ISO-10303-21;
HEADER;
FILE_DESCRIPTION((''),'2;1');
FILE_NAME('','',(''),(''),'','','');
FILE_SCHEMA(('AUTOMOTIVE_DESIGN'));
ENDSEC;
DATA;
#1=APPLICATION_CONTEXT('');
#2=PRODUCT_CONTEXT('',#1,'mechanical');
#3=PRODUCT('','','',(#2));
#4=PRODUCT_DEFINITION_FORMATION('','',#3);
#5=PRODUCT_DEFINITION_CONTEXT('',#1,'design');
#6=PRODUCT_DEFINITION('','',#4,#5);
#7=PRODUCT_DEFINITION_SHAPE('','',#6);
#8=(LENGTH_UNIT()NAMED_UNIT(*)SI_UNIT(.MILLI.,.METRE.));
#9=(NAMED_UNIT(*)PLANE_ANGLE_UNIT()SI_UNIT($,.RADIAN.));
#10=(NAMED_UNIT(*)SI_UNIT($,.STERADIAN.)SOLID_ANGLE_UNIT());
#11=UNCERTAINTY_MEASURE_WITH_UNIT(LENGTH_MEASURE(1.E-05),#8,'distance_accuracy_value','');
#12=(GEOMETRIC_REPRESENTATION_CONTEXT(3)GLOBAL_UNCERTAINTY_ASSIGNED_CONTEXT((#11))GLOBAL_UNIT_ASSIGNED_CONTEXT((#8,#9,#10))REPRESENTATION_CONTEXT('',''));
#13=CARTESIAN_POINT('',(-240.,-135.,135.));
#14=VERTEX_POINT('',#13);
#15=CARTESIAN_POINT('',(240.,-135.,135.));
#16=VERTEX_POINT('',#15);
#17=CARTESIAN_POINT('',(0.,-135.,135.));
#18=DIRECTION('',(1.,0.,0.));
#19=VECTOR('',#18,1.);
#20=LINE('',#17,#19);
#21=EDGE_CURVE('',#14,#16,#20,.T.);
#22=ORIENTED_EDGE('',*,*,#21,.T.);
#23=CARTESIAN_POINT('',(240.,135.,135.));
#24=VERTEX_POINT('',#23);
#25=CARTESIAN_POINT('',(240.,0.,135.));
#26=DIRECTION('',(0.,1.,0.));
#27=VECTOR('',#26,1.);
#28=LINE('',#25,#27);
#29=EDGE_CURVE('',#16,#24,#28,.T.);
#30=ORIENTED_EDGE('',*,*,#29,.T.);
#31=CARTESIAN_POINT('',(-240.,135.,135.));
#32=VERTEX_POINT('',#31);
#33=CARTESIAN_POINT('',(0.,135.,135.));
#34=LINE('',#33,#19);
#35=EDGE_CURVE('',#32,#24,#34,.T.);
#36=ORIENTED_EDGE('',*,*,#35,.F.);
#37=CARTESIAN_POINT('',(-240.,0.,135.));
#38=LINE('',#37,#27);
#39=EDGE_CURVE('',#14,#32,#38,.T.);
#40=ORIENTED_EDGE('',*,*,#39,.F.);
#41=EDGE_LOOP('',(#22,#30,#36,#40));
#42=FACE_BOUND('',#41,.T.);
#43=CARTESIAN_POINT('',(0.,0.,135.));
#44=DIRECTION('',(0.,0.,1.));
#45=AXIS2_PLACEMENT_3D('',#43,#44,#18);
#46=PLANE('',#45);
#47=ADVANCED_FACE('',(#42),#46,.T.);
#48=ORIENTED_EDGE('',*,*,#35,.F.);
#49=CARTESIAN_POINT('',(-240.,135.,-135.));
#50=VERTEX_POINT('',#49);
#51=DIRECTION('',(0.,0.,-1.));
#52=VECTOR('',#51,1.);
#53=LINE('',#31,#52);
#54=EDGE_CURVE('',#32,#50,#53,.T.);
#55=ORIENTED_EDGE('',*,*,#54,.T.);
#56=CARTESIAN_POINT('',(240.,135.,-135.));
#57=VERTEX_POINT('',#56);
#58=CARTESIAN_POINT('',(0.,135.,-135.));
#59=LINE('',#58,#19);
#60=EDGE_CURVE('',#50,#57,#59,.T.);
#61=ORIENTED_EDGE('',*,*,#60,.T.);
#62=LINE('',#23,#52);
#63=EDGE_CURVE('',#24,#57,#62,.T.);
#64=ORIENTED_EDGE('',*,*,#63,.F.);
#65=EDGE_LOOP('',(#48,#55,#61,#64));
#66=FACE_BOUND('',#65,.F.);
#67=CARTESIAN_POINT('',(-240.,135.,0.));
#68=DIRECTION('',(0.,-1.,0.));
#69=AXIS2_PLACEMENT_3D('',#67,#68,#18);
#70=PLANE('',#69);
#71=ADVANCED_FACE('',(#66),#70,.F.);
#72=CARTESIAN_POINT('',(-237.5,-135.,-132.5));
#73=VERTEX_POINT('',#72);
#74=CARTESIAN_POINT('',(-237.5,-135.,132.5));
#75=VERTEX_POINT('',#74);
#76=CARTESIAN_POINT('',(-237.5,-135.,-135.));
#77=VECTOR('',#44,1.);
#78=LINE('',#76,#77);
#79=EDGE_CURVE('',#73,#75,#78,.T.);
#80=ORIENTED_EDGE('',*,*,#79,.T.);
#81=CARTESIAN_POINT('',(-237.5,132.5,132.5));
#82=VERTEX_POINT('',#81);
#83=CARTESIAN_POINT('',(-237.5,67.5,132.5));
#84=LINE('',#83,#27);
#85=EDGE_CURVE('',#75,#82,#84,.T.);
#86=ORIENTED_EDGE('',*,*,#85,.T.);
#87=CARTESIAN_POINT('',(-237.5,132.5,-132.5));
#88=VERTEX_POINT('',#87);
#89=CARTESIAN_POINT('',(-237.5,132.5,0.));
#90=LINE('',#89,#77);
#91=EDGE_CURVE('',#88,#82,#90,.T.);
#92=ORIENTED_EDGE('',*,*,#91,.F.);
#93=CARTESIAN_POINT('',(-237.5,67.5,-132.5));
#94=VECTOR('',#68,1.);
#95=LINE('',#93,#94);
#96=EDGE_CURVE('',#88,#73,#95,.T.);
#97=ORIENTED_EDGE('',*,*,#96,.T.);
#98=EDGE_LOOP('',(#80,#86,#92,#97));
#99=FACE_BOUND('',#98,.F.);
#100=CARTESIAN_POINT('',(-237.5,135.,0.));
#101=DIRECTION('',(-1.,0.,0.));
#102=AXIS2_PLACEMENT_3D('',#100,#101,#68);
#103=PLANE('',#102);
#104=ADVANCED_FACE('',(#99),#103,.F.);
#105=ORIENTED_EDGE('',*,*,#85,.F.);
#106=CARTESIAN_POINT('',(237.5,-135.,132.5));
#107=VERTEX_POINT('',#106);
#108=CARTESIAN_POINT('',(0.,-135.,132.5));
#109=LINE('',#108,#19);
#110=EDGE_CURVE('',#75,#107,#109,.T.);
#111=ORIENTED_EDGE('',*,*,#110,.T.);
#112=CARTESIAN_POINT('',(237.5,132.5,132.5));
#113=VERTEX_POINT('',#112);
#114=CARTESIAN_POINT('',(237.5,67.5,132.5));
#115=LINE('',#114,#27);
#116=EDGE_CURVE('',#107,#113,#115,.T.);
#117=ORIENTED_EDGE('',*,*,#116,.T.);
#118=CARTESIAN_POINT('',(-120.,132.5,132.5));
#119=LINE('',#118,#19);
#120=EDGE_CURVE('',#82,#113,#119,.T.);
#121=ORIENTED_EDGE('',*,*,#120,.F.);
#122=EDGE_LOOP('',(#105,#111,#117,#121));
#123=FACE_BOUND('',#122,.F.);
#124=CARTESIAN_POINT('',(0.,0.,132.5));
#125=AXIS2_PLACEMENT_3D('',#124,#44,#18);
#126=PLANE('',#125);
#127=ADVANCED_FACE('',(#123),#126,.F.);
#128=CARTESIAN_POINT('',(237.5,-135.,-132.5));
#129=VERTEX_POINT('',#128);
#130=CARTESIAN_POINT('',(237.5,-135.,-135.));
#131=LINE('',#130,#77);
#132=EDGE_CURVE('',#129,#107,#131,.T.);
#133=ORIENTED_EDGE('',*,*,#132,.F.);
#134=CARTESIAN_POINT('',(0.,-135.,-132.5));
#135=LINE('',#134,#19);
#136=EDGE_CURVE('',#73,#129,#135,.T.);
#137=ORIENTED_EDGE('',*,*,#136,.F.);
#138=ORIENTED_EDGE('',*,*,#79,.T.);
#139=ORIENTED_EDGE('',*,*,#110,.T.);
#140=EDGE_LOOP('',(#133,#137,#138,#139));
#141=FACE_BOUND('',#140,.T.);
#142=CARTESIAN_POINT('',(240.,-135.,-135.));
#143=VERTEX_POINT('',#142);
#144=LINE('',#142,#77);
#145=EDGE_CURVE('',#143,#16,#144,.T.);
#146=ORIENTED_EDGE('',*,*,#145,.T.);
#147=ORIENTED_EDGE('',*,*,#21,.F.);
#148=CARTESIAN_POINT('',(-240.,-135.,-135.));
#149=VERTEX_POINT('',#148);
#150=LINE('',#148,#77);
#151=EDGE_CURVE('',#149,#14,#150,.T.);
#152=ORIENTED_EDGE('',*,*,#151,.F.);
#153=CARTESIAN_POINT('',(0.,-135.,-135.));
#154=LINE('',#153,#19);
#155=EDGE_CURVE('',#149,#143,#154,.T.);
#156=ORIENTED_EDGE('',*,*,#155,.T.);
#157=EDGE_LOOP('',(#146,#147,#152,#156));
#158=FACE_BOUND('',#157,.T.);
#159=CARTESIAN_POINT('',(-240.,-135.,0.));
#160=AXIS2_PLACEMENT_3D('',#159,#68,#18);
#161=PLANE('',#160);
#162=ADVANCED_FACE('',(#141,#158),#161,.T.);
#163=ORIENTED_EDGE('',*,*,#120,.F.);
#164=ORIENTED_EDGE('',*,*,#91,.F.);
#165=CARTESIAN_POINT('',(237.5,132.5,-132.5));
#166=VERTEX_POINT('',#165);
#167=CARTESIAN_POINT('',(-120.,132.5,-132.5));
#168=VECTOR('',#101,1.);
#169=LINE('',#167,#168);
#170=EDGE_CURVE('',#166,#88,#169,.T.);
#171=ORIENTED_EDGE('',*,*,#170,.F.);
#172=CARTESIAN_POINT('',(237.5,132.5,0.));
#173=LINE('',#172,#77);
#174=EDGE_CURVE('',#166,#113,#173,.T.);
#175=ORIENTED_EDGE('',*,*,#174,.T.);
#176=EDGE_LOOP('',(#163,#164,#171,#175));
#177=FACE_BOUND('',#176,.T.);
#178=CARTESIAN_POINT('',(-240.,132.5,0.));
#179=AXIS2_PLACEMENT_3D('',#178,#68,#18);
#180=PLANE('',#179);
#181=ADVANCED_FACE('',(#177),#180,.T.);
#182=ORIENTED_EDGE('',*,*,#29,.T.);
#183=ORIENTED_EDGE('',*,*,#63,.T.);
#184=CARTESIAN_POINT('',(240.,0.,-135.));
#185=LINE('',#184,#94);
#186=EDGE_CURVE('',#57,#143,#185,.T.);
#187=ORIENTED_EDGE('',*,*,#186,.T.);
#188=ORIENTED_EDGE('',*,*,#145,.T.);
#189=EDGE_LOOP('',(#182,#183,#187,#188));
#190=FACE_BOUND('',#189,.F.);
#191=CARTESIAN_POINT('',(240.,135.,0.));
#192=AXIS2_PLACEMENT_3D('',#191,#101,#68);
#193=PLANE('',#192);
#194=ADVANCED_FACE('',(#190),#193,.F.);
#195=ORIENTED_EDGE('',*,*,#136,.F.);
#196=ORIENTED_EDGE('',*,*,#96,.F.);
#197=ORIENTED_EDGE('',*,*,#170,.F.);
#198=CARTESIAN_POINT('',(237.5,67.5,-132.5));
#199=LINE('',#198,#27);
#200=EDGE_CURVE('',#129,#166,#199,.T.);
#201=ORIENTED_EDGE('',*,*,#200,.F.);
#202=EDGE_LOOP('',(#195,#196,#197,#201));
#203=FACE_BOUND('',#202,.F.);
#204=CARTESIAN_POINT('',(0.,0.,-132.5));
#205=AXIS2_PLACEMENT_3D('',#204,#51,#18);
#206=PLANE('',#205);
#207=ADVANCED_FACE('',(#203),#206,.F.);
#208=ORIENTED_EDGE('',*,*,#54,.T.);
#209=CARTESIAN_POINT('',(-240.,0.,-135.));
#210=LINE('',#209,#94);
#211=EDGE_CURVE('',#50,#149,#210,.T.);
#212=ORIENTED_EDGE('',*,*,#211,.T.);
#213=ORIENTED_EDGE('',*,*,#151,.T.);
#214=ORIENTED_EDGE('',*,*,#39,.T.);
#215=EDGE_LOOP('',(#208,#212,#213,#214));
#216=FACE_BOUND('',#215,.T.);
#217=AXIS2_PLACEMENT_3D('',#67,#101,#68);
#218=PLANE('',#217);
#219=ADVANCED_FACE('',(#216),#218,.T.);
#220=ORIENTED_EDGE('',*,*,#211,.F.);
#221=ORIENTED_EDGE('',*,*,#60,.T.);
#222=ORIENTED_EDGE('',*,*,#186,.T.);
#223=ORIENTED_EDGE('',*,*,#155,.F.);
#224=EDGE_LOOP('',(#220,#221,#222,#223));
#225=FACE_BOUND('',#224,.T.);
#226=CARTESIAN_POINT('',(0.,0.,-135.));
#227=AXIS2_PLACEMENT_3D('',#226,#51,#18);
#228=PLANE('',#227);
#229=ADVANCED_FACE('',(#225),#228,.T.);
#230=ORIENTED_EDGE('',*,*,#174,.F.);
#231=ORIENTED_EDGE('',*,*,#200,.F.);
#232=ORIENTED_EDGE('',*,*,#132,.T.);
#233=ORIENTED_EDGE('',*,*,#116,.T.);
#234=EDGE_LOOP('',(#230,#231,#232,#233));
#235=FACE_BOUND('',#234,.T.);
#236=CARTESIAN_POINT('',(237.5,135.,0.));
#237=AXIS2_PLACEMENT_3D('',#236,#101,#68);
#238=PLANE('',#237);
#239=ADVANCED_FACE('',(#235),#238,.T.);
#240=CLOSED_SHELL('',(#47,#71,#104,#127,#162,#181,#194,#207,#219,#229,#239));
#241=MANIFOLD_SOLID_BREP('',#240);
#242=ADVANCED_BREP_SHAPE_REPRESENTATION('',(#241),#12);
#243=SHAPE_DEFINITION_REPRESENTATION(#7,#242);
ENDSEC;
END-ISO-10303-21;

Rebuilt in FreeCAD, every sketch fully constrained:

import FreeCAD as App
import Part
import Sketcher

V = App.Vector
Q = App.Units.Quantity


def faces_at(feature, points):
    """Names of the faces that lie closest to the given points."""
    faces = feature.Shape.Faces
    near = lambda p: min(range(len(faces)), key=lambda i: faces[i].distToShape(Part.Vertex(*p))[0])
    return sorted({f"Face{near(p) + 1}" for p in points})

doc = App.newDocument("Part")
params = doc.addObject("Spreadsheet::Sheet", "Params")
for row, (alias, value) in enumerate([
    ("sketch1_width", "480 mm"),
    ("sketch1_height", "270 mm"),
    ("pad1_length", "135 mm"),
    ("sketch2_width", "480 mm"),
    ("sketch2_height", "270 mm"),
    ("pad2_length", "135 mm"),
    ("thickness_wall", "2.5 mm"),
], start=1):
    params.set(f"A{row}", alias)
    params.set(f"B{row}", "=" + value)
    params.setAlias(f"B{row}", alias)

body = doc.addObject("PartDesign::Body", "Body")

# Sketch on XY plane
sketch1 = body.newObject("Sketcher::SketchObject", "Sketch")
sketch1.AttachmentSupport = (doc.getObject("XY_Plane"), [""])
sketch1.MapMode = "FlatFace"
sketch1.addGeometry([
    Part.LineSegment(V(-240, 135, 0), V(-240, -135, 0)),
    Part.LineSegment(V(-240, -135, 0), V(240, -135, 0)),
    Part.LineSegment(V(240, -135, 0), V(240, 135, 0)),
    Part.LineSegment(V(240, 135, 0), V(-240, 135, 0)),
], False)
sketch1.addConstraint([
    Sketcher.Constraint("Coincident", 0, 2, 1, 1),
    Sketcher.Constraint("Coincident", 1, 2, 2, 1),
    Sketcher.Constraint("Coincident", 2, 2, 3, 1),
    Sketcher.Constraint("Coincident", 3, 2, 0, 1),
    Sketcher.Constraint("Vertical", 0),
    Sketcher.Constraint("Horizontal", 1),
    Sketcher.Constraint("Vertical", 2),
    Sketcher.Constraint("Horizontal", 3),
    Sketcher.Constraint("Symmetric", 0, 2, 2, 2, -1, 1),
    Sketcher.Constraint("DistanceX", 1, 1, 1, 2, Q("480 mm")),
    Sketcher.Constraint("DistanceY", 0, 2, 0, 1, Q("270 mm")),
])
sketch1.setExpression("Constraints[9]", "Params.sketch1_width")
sketch1.setExpression("Constraints[10]", "Params.sketch1_height")
pad1 = body.newObject("PartDesign::Pad", "Pad")
pad1.Profile = sketch1
pad1.setExpression("Length", "Params.pad1_length")

# Sketch on XY plane
sketch2 = body.newObject("Sketcher::SketchObject", "Sketch001")
sketch2.AttachmentSupport = (doc.getObject("XY_Plane"), [""])
sketch2.MapMode = "FlatFace"
sketch2.addGeometry([
    Part.LineSegment(V(-240, -135, 0), V(-240, 135, 0)),
    Part.LineSegment(V(-240, 135, 0), V(240, 135, 0)),
    Part.LineSegment(V(240, 135, 0), V(240, -135, 0)),
    Part.LineSegment(V(240, -135, 0), V(-240, -135, 0)),
], False)
sketch2.addConstraint([
    Sketcher.Constraint("Coincident", 0, 2, 1, 1),
    Sketcher.Constraint("Coincident", 1, 2, 2, 1),
    Sketcher.Constraint("Coincident", 2, 2, 3, 1),
    Sketcher.Constraint("Coincident", 3, 2, 0, 1),
    Sketcher.Constraint("Vertical", 0),
    Sketcher.Constraint("Horizontal", 1),
    Sketcher.Constraint("Vertical", 2),
    Sketcher.Constraint("Horizontal", 3),
    Sketcher.Constraint("Symmetric", 0, 2, 2, 2, -1, 1),
    Sketcher.Constraint("DistanceX", 1, 1, 1, 2, Q("480 mm")),
    Sketcher.Constraint("DistanceY", 0, 1, 0, 2, Q("270 mm")),
])
sketch2.setExpression("Constraints[9]", "Params.sketch2_width")
sketch2.setExpression("Constraints[10]", "Params.sketch2_height")
pad2 = body.newObject("PartDesign::Pad", "Pad001")
pad2.Profile = sketch2
pad2.setExpression("Length", "Params.pad2_length")
pad2.Reversed = True
doc.recompute()

thickness = body.newObject("PartDesign::Thickness", "Thickness")
thickness.Base = (pad2, faces_at(pad2, [(0, -135, 0)]))
thickness.setExpression("Value", "Params.thickness_wall")
thickness.Reversed = True
thickness.Join = "Arc"

doc.recompute()
